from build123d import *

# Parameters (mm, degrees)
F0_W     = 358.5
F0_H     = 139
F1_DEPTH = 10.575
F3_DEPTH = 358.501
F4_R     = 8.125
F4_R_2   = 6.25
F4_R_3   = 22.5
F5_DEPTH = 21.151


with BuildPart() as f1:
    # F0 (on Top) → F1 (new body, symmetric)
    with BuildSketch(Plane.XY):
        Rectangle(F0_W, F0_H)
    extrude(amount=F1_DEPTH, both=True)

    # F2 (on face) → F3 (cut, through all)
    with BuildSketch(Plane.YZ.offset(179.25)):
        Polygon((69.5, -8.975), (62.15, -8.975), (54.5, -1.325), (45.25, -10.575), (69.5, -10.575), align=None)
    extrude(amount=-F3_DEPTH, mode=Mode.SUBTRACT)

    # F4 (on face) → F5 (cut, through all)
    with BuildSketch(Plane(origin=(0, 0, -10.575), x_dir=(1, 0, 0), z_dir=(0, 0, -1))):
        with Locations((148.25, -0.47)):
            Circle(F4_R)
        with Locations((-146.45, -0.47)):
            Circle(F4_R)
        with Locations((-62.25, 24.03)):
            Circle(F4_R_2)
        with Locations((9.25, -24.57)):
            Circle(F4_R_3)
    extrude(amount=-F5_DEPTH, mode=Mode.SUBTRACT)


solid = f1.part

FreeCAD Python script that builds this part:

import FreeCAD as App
import Part
import Sketcher
from FreeCAD import Vector
Q = App.Units.Quantity

doc = App.newDocument("Part")
body = doc.addObject("PartDesign::Body", "Body")

# Sketch on XY plane
sketch1 = body.newObject("Sketcher::SketchObject", "Sketch")
sketch1.AttachmentSupport = (doc.getObject("XY_Plane"), [""])
sketch1.MapMode = "FlatFace"
sketch1.addGeometry(Part.LineSegment(Vector(-179, 70, 0), Vector(-179, -70, 0)), False)
sketch1.addGeometry(Part.LineSegment(Vector(-179, -70, 0), Vector(179, -70, 0)), False)
sketch1.addGeometry(Part.LineSegment(Vector(179, -70, 0), Vector(179, 70, 0)), False)
sketch1.addGeometry(Part.LineSegment(Vector(179, 70, 0), Vector(-179, 70, 0)), False)
sketch1.addConstraint(Sketcher.Constraint("Coincident", 0, 2, 1, 1))
sketch1.addConstraint(Sketcher.Constraint("Coincident", 1, 2, 2, 1))
sketch1.addConstraint(Sketcher.Constraint("Coincident", 2, 2, 3, 1))
sketch1.addConstraint(Sketcher.Constraint("Coincident", 3, 2, 0, 1))
sketch1.addConstraint(Sketcher.Constraint("Vertical", 0))
sketch1.addConstraint(Sketcher.Constraint("Horizontal", 1))
sketch1.addConstraint(Sketcher.Constraint("Vertical", 2))
sketch1.addConstraint(Sketcher.Constraint("Horizontal", 3))
sketch1.addConstraint(Sketcher.Constraint("Symmetric", 0, 2, 2, 2, -1, 1))
sketch1.addConstraint(Sketcher.Constraint("DistanceY", 0, 2, 0, 1, 139.0))
sketch1.addConstraint(Sketcher.Constraint("DistanceX", 1, 1, 1, 2, 358.5))
pad1 = body.newObject("PartDesign::Pad", "Pad")
pad1.Profile = sketch1
pad1.Length = 21.15
pad1.Midplane = True

# Sketch on YZ plane
sketch2 = body.newObject("Sketcher::SketchObject", "Sketch001")
sketch2.AttachmentSupport = (doc.getObject("YZ_Plane"), [""])
sketch2.MapMode = "FlatFace"
sketch2.AttachmentOffset = App.Placement(Vector(0, 0, 179.25), App.Rotation())
sketch2.addGeometry(Part.LineSegment(Vector(69.5, -9, 0), Vector(62.1, -9, 0)), False)
sketch2.addGeometry(Part.LineSegment(Vector(62.1, -9, 0), Vector(54.5, -1.3, 0)), False)
sketch2.addGeometry(Part.LineSegment(Vector(54.5, -1.3, 0), Vector(45.2, -10.6, 0)), False)
sketch2.addGeometry(Part.LineSegment(Vector(45.2, -10.6, 0), Vector(69.5, -10.6, 0)), False)
sketch2.addGeometry(Part.LineSegment(Vector(69.5, -10.6, 0), Vector(69.5, -9, 0)), False)
sketch2.addConstraint(Sketcher.Constraint("Coincident", 0, 2, 1, 1))
sketch2.addConstraint(Sketcher.Constraint("Coincident", 1, 2, 2, 1))
sketch2.addConstraint(Sketcher.Constraint("Coincident", 2, 2, 3, 1))
sketch2.addConstraint(Sketcher.Constraint("Coincident", 3, 2, 4, 1))
sketch2.addConstraint(Sketcher.Constraint("Coincident", 4, 2, 0, 1))
sketch2.addConstraint(Sketcher.Constraint("Horizontal", 0))
sketch2.addConstraint(Sketcher.Constraint("Horizontal", 3))
sketch2.addConstraint(Sketcher.Constraint("Vertical", 4))
sketch2.addConstraint(Sketcher.Constraint("Perpendicular", 1, 2))
sketch2.addConstraint(Sketcher.Constraint("Angle", 1, Q("135 deg")))
sketch2.addConstraint(Sketcher.Constraint("DistanceY", 4, 1, 4, 2, 1.6))
sketch2.addConstraint(Sketcher.Constraint("DistanceX", 1, 2, 3, 2, 15.0))
sketch2.addConstraint(Sketcher.Constraint("DistanceX", 0, 2, 0, 1, 7.35))
sketch2.addConstraint(Sketcher.Constraint("DistanceX", -1, 1, 1, 2, 54.5))
sketch2.addConstraint(Sketcher.Constraint("DistanceY", 0, 2, -1, 1, 8.975))
pocket1 = body.newObject("PartDesign::Pocket", "Pocket")
pocket1.Profile = sketch2
pocket1.Type = "ThroughAll"

# Sketch on XY plane
sketch3 = body.newObject("Sketcher::SketchObject", "Sketch002")
sketch3.AttachmentSupport = (doc.getObject("XY_Plane"), [""])
sketch3.MapMode = "FlatFace"
sketch3.AttachmentOffset = App.Placement(Vector(0, 0, -10.575), App.Rotation())
sketch3.addGeometry(Part.Circle(Vector(148, 0, 0), Vector(0, 0, 1), 8), False)
sketch3.addGeometry(Part.Circle(Vector(-146, 0, 0), Vector(0, 0, 1), 8), False)
sketch3.addGeometry(Part.Circle(Vector(-62, -24, 0), Vector(0, 0, 1), 6), False)
sketch3.addGeometry(Part.Circle(Vector(9, 25, 0), Vector(0, 0, 1), 22), False)
sketch3.addConstraint(Sketcher.Constraint("Equal", 0, 1))
sketch3.addConstraint(Sketcher.Constraint("Horizontal", 0, 3, 1, 3))
sketch3.addConstraint(Sketcher.Constraint("Diameter", 3, 45.0))
sketch3.addConstraint(Sketcher.Constraint("Diameter", 2, 12.5))
sketch3.addConstraint(Sketcher.Constraint("Diameter", 0, 16.25))
sketch3.addConstraint(Sketcher.Constraint("DistanceX", 3, 3, 0, 3, 139.0))
sketch3.addConstraint(Sketcher.Constraint("DistanceX", 1, 3, 0, 3, 294.7))
sketch3.addConstraint(Sketcher.Constraint("DistanceX", 1, 3, 2, 3, 84.2))
sketch3.addConstraint(Sketcher.Constraint("DistanceY", 2, 3, 1, 3, 24.5))
sketch3.addConstraint(Sketcher.Constraint("DistanceY", 2, 3, 3, 3, 48.6))
sketch3.addConstraint(Sketcher.Constraint("DistanceX", -1, 1, 0, 3, 148.25))
sketch3.addConstraint(Sketcher.Constraint("DistanceY", -1, 1, 0, 3, 0.47))
pocket2 = body.newObject("PartDesign::Pocket", "Pocket001")
pocket2.Profile = sketch3
pocket2.Type = "ThroughAll"
pocket2.Reversed = True

doc.recompute()
